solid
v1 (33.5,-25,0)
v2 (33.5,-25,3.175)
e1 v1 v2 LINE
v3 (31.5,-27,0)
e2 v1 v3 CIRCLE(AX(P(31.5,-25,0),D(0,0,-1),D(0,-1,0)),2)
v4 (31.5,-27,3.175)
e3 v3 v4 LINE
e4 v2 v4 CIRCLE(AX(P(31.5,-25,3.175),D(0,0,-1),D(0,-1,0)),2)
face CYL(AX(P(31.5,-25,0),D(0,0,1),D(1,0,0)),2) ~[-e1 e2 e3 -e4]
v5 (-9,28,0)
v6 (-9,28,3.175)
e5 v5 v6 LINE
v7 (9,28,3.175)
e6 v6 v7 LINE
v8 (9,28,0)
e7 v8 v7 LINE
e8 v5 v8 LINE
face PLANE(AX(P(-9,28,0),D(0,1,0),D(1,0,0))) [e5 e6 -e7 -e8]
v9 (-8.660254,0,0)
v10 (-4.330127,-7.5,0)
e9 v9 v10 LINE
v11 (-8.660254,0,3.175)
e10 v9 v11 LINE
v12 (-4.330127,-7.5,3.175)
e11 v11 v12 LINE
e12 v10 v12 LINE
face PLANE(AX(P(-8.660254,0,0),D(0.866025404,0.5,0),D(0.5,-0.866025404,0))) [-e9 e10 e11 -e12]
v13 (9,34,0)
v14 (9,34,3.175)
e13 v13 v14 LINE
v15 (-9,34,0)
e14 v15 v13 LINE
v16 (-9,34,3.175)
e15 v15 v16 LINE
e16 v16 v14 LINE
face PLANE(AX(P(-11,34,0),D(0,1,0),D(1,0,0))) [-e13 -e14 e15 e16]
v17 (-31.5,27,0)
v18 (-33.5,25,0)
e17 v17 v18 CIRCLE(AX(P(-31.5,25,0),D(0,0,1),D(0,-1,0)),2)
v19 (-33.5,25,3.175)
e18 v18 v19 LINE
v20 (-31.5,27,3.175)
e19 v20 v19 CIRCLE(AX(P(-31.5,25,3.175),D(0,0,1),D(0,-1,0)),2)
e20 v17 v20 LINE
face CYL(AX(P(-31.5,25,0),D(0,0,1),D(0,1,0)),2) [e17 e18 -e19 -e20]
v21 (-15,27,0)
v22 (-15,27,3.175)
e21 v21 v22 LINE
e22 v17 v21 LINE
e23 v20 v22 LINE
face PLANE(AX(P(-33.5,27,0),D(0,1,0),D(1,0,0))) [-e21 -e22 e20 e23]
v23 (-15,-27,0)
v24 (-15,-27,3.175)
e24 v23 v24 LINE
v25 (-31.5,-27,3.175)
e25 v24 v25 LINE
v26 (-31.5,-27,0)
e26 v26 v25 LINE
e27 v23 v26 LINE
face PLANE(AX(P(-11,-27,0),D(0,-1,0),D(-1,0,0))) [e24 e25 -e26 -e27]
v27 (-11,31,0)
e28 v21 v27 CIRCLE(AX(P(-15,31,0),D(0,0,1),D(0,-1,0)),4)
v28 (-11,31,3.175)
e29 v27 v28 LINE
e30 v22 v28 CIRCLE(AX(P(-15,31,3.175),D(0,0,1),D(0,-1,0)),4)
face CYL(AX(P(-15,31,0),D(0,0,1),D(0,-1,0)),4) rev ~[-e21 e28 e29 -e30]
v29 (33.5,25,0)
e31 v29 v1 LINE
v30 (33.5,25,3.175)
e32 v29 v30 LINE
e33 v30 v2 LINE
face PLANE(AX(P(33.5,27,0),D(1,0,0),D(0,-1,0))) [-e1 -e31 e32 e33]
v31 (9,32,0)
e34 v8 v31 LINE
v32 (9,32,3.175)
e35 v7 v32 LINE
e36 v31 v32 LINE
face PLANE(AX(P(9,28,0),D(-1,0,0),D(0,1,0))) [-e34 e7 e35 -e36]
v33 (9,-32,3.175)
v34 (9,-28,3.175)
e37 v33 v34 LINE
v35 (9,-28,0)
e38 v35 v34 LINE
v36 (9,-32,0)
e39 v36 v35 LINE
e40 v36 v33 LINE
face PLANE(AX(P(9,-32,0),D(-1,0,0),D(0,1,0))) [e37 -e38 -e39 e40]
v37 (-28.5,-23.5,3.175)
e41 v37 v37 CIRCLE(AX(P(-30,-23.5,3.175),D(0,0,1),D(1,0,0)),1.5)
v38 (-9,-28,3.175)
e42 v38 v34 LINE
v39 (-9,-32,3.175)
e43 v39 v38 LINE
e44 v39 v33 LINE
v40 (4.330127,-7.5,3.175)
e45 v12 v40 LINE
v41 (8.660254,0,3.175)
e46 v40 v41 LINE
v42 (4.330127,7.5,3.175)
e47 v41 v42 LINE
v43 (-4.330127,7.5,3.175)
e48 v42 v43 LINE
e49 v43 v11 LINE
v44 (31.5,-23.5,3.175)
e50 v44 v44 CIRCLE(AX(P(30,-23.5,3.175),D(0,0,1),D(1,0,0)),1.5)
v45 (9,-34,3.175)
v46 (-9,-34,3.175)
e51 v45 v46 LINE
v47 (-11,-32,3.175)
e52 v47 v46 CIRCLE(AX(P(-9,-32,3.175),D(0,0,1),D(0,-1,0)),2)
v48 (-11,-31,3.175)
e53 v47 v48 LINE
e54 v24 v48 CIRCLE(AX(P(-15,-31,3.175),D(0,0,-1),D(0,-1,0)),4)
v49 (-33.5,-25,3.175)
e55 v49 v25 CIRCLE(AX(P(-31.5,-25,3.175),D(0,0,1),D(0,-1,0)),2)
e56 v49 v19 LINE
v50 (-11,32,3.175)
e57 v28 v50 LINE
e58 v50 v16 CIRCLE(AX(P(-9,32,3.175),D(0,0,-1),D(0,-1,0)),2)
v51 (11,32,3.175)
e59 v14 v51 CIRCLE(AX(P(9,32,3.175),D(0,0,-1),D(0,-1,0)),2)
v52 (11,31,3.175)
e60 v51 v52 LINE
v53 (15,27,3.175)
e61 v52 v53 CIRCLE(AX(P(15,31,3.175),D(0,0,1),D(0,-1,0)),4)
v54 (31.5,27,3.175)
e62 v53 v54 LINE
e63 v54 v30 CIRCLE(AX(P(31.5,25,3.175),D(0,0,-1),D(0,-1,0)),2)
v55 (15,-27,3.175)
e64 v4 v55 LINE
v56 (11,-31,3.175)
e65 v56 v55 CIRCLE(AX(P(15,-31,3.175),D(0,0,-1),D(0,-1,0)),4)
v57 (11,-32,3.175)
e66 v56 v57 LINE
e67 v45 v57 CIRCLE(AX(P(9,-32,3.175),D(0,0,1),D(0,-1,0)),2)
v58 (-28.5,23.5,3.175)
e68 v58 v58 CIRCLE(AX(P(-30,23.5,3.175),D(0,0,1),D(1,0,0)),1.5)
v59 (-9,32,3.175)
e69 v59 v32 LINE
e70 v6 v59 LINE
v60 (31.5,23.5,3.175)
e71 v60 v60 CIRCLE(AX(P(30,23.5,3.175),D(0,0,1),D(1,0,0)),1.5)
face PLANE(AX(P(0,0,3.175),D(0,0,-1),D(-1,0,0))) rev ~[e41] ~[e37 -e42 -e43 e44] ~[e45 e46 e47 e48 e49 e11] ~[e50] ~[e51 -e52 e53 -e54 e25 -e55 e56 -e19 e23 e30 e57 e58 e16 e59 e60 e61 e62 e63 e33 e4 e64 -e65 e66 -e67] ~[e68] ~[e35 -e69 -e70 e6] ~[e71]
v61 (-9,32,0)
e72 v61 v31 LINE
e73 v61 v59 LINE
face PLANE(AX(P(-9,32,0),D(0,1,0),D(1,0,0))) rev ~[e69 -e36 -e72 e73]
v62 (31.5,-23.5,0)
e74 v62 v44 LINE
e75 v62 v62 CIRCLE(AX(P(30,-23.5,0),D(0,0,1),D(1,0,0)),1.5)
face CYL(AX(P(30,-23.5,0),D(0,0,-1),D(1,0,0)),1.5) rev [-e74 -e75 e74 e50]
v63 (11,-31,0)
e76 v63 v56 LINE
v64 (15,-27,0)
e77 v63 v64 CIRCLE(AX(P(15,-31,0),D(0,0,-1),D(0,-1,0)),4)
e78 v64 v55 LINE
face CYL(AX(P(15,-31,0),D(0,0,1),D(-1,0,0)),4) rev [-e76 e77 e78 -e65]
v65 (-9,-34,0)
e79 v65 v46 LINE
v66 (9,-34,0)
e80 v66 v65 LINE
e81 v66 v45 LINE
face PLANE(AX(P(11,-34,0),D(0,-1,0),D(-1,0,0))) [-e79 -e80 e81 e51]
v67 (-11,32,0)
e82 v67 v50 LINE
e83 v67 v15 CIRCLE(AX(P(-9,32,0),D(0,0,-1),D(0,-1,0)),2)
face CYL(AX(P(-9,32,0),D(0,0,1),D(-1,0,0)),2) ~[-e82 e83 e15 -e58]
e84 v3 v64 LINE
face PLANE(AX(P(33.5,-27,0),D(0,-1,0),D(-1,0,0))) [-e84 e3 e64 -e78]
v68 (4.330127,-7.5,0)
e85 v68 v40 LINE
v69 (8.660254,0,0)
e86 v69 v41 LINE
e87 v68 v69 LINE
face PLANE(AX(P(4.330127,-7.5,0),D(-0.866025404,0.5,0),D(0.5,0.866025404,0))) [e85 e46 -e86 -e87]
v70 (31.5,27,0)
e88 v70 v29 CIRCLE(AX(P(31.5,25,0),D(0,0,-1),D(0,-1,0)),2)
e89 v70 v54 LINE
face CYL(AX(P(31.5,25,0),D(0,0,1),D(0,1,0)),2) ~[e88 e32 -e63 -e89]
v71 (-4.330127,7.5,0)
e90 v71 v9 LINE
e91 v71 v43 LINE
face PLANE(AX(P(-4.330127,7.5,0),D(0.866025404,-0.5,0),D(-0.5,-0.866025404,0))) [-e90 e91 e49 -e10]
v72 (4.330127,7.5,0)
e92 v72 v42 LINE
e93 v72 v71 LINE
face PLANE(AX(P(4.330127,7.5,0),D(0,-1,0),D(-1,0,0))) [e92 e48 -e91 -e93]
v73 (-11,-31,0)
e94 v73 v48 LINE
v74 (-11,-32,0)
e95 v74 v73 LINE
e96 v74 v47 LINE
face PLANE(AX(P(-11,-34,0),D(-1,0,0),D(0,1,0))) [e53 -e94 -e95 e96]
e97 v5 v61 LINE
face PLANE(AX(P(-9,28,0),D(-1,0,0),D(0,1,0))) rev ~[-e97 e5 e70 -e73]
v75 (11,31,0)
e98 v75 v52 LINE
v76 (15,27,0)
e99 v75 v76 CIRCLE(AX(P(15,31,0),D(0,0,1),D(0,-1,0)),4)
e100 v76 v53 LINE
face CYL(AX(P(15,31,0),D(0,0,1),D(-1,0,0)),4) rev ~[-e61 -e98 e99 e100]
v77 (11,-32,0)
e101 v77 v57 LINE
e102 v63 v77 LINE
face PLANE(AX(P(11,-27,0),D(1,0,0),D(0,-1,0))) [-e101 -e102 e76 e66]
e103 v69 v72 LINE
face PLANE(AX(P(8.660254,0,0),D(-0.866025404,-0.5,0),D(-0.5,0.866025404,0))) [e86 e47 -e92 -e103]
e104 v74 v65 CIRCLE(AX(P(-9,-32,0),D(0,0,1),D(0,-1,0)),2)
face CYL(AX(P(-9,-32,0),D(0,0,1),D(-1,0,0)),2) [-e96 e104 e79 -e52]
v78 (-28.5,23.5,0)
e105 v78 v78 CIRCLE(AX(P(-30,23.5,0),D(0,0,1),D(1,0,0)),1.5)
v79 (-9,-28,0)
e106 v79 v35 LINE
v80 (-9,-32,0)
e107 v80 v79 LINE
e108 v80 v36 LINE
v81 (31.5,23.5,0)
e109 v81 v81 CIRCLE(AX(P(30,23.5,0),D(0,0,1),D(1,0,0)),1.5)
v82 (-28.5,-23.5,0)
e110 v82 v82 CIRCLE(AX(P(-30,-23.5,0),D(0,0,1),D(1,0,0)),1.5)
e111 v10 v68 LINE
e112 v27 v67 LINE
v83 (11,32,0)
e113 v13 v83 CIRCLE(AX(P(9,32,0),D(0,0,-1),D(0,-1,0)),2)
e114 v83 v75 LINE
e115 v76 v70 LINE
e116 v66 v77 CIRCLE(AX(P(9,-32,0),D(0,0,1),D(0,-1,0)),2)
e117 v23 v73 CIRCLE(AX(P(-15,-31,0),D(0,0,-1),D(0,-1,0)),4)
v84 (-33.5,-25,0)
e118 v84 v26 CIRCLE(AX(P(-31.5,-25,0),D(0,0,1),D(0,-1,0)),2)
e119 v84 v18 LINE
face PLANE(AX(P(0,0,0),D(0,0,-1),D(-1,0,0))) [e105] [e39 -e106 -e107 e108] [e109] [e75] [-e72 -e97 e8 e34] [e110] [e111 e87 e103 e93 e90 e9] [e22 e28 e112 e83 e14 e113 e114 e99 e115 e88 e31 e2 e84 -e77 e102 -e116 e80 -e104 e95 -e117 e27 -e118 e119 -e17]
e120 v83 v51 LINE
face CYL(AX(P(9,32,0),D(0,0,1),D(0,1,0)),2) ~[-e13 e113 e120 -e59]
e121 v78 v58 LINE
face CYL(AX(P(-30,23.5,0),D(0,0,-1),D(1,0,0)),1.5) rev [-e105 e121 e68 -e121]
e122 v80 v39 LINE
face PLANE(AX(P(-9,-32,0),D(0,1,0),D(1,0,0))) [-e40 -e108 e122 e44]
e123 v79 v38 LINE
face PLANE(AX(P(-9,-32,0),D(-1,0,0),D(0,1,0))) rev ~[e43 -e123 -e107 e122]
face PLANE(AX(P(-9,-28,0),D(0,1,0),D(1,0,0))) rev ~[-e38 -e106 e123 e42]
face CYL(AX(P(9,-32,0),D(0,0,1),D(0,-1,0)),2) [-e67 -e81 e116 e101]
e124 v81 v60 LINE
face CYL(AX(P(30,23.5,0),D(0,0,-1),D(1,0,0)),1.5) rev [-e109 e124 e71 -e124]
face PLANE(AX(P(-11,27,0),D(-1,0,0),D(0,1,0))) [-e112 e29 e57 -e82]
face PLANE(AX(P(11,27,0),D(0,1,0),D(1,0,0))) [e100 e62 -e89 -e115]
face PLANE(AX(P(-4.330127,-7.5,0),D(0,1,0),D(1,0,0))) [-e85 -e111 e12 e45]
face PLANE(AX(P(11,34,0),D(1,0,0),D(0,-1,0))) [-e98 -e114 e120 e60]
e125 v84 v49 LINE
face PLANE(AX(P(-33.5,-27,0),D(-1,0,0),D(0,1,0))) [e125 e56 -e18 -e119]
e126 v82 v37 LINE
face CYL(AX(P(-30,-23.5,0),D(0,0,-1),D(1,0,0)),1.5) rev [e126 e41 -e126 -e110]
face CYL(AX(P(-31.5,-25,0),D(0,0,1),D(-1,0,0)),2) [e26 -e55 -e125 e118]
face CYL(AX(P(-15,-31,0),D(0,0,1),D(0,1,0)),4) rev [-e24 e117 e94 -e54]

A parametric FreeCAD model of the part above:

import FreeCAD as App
import Part
import Sketcher
from FreeCAD import Vector
Q = App.Units.Quantity


def edges_at(feature, points):
    """Names of the edges that pass closest to the given points."""
    edges = feature.Shape.Edges
    near = lambda p: min(range(len(edges)), key=lambda i: edges[i].distToShape(Part.Vertex(*p))[0])
    return sorted({f"Edge{near(p) + 1}" for p in points})

doc = App.newDocument("Part")
body = doc.addObject("PartDesign::Body", "Body")

# Sketch on XY plane
sketch1 = body.newObject("Sketcher::SketchObject", "Sketch")
sketch1.AttachmentSupport = (doc.getObject("XY_Plane"), [""])
sketch1.MapMode = "FlatFace"
sketch1.addGeometry(Part.LineSegment(Vector(-11, 27, 0), Vector(-33.5, 27, 0)), False)
sketch1.addGeometry(Part.LineSegment(Vector(-33.5, 27, 0), Vector(-33.5, -27, 0)), False)
sketch1.addGeometry(Part.LineSegment(Vector(-33.5, -27, 0), Vector(-11, -27, 0)), False)
sketch1.addGeometry(Part.LineSegment(Vector(-11, -27, 0), Vector(-11, -34, 0)), False)
sketch1.addGeometry(Part.LineSegment(Vector(-11, -34, 0), Vector(11, -34, 0)), False)
sketch1.addGeometry(Part.LineSegment(Vector(11, -34, 0), Vector(11, -27, 0)), False)
sketch1.addGeometry(Part.LineSegment(Vector(11, -27, 0), Vector(33.5, -27, 0)), False)
sketch1.addGeometry(Part.LineSegment(Vector(33.5, -27, 0), Vector(33.5, 27, 0)), False)
sketch1.addGeometry(Part.LineSegment(Vector(33.5, 27, 0), Vector(11, 27, 0)), False)
sketch1.addGeometry(Part.LineSegment(Vector(11, 27, 0), Vector(11, 34, 0)), False)
sketch1.addGeometry(Part.LineSegment(Vector(11, 34, 0), Vector(-11, 34, 0)), False)
sketch1.addGeometry(Part.LineSegment(Vector(-11, 34, 0), Vector(-11, 27, 0)), False)
sketch1.addGeometry(Part.Circle(Vector(30, -23.5, 0), Vector(0, 0, 1), 1.5), False)
sketch1.addGeometry(Part.LineSegment(Vector(-9, -32, 0), Vector(-9, -28, 0)), False)
sketch1.addGeometry(Part.LineSegment(Vector(-9, -28, 0), Vector(9, -28, 0)), False)
sketch1.addGeometry(Part.LineSegment(Vector(9, -28, 0), Vector(9, -32, 0)), False)
sketch1.addGeometry(Part.LineSegment(Vector(9, -32, 0), Vector(-9, -32, 0)), False)
sketch1.addGeometry(Part.Circle(Vector(-30, -23.5, 0), Vector(0, 0, 1), 1.5), False)
sketch1.addGeometry(Part.Circle(Vector(30, 23.5, 0), Vector(0, 0, 1), 1.5), False)
sketch1.addGeometry(Part.LineSegment(Vector(8.7, 0, 0), Vector(4.3, -7.5, 0)), False)
sketch1.addGeometry(Part.LineSegment(Vector(4.3, -7.5, 0), Vector(-4.3, -7.5, 0)), False)
sketch1.addGeometry(Part.LineSegment(Vector(-4.3, -7.5, 0), Vector(-8.7, 0, 0)), False)
sketch1.addGeometry(Part.LineSegment(Vector(-8.7, 0, 0), Vector(-4.3, 7.5, 0)), False)
sketch1.addGeometry(Part.LineSegment(Vector(-4.3, 7.5, 0), Vector(4.3, 7.5, 0)), False)
sketch1.addGeometry(Part.LineSegment(Vector(4.3, 7.5, 0), Vector(8.7, 0, 0)), False)
sketch1.addGeometry(Part.LineSegment(Vector(-9, 28, 0), Vector(-9, 32, 0)), False)
sketch1.addGeometry(Part.LineSegment(Vector(-9, 32, 0), Vector(9, 32, 0)), False)
sketch1.addGeometry(Part.LineSegment(Vector(9, 32, 0), Vector(9, 28, 0)), False)
sketch1.addGeometry(Part.LineSegment(Vector(9, 28, 0), Vector(-9, 28, 0)), False)
sketch1.addGeometry(Part.Circle(Vector(-30, 23.5, 0), Vector(0, 0, 1), 1.5), False)
sketch1.addConstraint(Sketcher.Constraint("Coincident", 0, 2, 1, 1))
sketch1.addConstraint(Sketcher.Constraint("Coincident", 1, 2, 2, 1))
sketch1.addConstraint(Sketcher.Constraint("Coincident", 2, 2, 3, 1))
sketch1.addConstraint(Sketcher.Constraint("Coincident", 3, 2, 4, 1))
sketch1.addConstraint(Sketcher.Constraint("Coincident", 4, 2, 5, 1))
sketch1.addConstraint(Sketcher.Constraint("Coincident", 5, 2, 6, 1))
sketch1.addConstraint(Sketcher.Constraint("Coincident", 6, 2, 7, 1))
sketch1.addConstraint(Sketcher.Constraint("Coincident", 7, 2, 8, 1))
sketch1.addConstraint(Sketcher.Constraint("Coincident", 8, 2, 9, 1))
sketch1.addConstraint(Sketcher.Constraint("Coincident", 9, 2, 10, 1))
sketch1.addConstraint(Sketcher.Constraint("Coincident", 10, 2, 11, 1))
sketch1.addConstraint(Sketcher.Constraint("Coincident", 11, 2, 0, 1))
sketch1.addConstraint(Sketcher.Constraint("Coincident", 13, 2, 14, 1))
sketch1.addConstraint(Sketcher.Constraint("Coincident", 14, 2, 15, 1))
sketch1.addConstraint(Sketcher.Constraint("Coincident", 15, 2, 16, 1))
sketch1.addConstraint(Sketcher.Constraint("Coincident", 16, 2, 13, 1))
sketch1.addConstraint(Sketcher.Constraint("Coincident", 19, 2, 20, 1))
sketch1.addConstraint(Sketcher.Constraint("Coincident", 20, 2, 21, 1))
sketch1.addConstraint(Sketcher.Constraint("Coincident", 21, 2, 22, 1))
sketch1.addConstraint(Sketcher.Constraint("Coincident", 22, 2, 23, 1))
sketch1.addConstraint(Sketcher.Constraint("Coincident", 23, 2, 24, 1))
sketch1.addConstraint(Sketcher.Constraint("Coincident", 24, 2, 19, 1))
sketch1.addConstraint(Sketcher.Constraint("Coincident", 25, 2, 26, 1))
sketch1.addConstraint(Sketcher.Constraint("Coincident", 26, 2, 27, 1))
sketch1.addConstraint(Sketcher.Constraint("Coincident", 27, 2, 28, 1))
sketch1.addConstraint(Sketcher.Constraint("Coincident", 28, 2, 25, 1))
sketch1.addConstraint(Sketcher.Constraint("Horizontal", 0))
sketch1.addConstraint(Sketcher.Constraint("Vertical", 1))
sketch1.addConstraint(Sketcher.Constraint("Horizontal", 2))
sketch1.addConstraint(Sketcher.Constraint("Vertical", 3))
sketch1.addConstraint(Sketcher.Constraint("Horizontal", 4))
sketch1.addConstraint(Sketcher.Constraint("Vertical", 5))
sketch1.addConstraint(Sketcher.Constraint("Horizontal", 6))
sketch1.addConstraint(Sketcher.Constraint("Vertical", 7))
sketch1.addConstraint(Sketcher.Constraint("Horizontal", 8))
sketch1.addConstraint(Sketcher.Constraint("Vertical", 9))
sketch1.addConstraint(Sketcher.Constraint("Horizontal", 10))
sketch1.addConstraint(Sketcher.Constraint("Vertical", 11))
sketch1.addConstraint(Sketcher.Constraint("Vertical", 13))
sketch1.addConstraint(Sketcher.Constraint("Horizontal", 14))
sketch1.addConstraint(Sketcher.Constraint("Vertical", 15))
sketch1.addConstraint(Sketcher.Constraint("Horizontal", 16))
sketch1.addConstraint(Sketcher.Constraint("Horizontal", 20))
sketch1.addConstraint(Sketcher.Constraint("Horizontal", 23))
sketch1.addConstraint(Sketcher.Constraint("Vertical", 25))
sketch1.addConstraint(Sketcher.Constraint("Horizontal", 26))
sketch1.addConstraint(Sketcher.Constraint("Vertical", 27))
sketch1.addConstraint(Sketcher.Constraint("Horizontal", 28))
sketch1.addConstraint(Sketcher.Constraint("Equal", 12, 17))
sketch1.addConstraint(Sketcher.Constraint("Equal", 17, 18))
sketch1.addConstraint(Sketcher.Constraint("Equal", 18, 29))
sketch1.addConstraint(Sketcher.Constraint("Symmetric", 17, 3, 18, 3, -1, 1))
sketch1.addConstraint(Sketcher.Constraint("Symmetric", 12, 3, 29, 3, -1, 1))
sketch1.addConstraint(Sketcher.Constraint("Symmetric", 0, 2, 6, 2, -1, 1))
sketch1.addConstraint(Sketcher.Constraint("Symmetric", 2, 2, 8, 2, -1, 1))
sketch1.addConstraint(Sketcher.Constraint("Symmetric", 4, 2, 10, 2, -1, 1))
sketch1.addConstraint(Sketcher.Constraint("Symmetric", 19, 2, 22, 2, -1, 1))
sketch1.addConstraint(Sketcher.Constraint("Symmetric", 21, 2, 24, 2, -1, 1))
sketch1.addConstraint(Sketcher.Constraint("Symmetric", 15, 2, 25, 2, -1, 1))
sketch1.addConstraint(Sketcher.Constraint("Symmetric", 13, 2, 27, 2, -1, 1))
sketch1.addConstraint(Sketcher.Constraint("Symmetric", 12, 3, 17, 3, -2))
sketch1.addConstraint(Sketcher.Constraint("Symmetric", 2, 2, 5, 2, -2))
sketch1.addConstraint(Sketcher.Constraint("PointOnObject", 21, 2, -1))
sketch1.addConstraint(Sketcher.Constraint("Parallel", 21, 24))
sketch1.addConstraint(Sketcher.Constraint("Vertical", 20, 2, 22, 2))
sketch1.addConstraint(Sketcher.Constraint("Vertical", 16, 2, 25, 2))
sketch1.addConstraint(Sketcher.Constraint("Diameter", 12, Q("3 mm")))
sketch1.addConstraint(Sketcher.Constraint("DistanceX", 4, 1, 4, 2, Q("22 mm")))
sketch1.addConstraint(Sketcher.Constraint("DistanceX", 14, 1, 14, 2, Q("18 mm")))
sketch1.addConstraint(Sketcher.Constraint("DistanceY", 1, 2, 1, 1, Q("54 mm")))
sketch1.addConstraint(Sketcher.Constraint("DistanceY", 3, 2, 3, 1, Q("7 mm")))
sketch1.addConstraint(Sketcher.Constraint("DistanceY", 13, 1, 13, 2, Q("4 mm")))
sketch1.addConstraint(Sketcher.Constraint("Angle", 19, Q("-120 deg")))
sketch1.addConstraint(Sketcher.Constraint("DistanceX", 0, 2, 0, 1, Q("22.5 mm")))
sketch1.addConstraint(Sketcher.Constraint("DistanceX", -1, 1, 12, 3, Q("30 mm")))
sketch1.addConstraint(Sketcher.Constraint("DistanceY", 13, 2, -1, 1, Q("28 mm")))
sketch1.addConstraint(Sketcher.Constraint("DistanceY", 12, 3, 18, 3, Q("47 mm")))
sketch1.addConstraint(Sketcher.Constraint("DistanceY", 20, 2, 22, 2, Q("15 mm")))
sketch1.addConstraint(Sketcher.Constraint("DistanceX", 20, 2, 20, 1, Q("8.660254 mm")))
pad1 = body.newObject("PartDesign::Pad", "Pad")
pad1.Profile = sketch1
pad1.Length = 3.175
doc.recompute()

fillet = body.newObject("PartDesign::Fillet", "Fillet")
fillet.Base = (pad1, edges_at(pad1, [
    (-11, 27, 1.587),
    (11, 27, 1.587),
    (11, -27, 1.587),
    (-11, -27, 1.587),
]))
fillet.Radius = 4
doc.recompute()

fillet2 = body.newObject("PartDesign::Fillet", "Fillet001")
fillet2.Base = (fillet, edges_at(fillet, [
    (-33.5, 27, 1.587),
    (-11, 34, 1.587),
    (11, 34, 1.587),
    (33.5, 27, 1.587),
    (33.5, -27, 1.587),
    (11, -34, 1.587),
    (-11, -34, 1.587),
    (-33.5, -27, 1.587),
]))
fillet2.Radius = 2

doc.recompute()
